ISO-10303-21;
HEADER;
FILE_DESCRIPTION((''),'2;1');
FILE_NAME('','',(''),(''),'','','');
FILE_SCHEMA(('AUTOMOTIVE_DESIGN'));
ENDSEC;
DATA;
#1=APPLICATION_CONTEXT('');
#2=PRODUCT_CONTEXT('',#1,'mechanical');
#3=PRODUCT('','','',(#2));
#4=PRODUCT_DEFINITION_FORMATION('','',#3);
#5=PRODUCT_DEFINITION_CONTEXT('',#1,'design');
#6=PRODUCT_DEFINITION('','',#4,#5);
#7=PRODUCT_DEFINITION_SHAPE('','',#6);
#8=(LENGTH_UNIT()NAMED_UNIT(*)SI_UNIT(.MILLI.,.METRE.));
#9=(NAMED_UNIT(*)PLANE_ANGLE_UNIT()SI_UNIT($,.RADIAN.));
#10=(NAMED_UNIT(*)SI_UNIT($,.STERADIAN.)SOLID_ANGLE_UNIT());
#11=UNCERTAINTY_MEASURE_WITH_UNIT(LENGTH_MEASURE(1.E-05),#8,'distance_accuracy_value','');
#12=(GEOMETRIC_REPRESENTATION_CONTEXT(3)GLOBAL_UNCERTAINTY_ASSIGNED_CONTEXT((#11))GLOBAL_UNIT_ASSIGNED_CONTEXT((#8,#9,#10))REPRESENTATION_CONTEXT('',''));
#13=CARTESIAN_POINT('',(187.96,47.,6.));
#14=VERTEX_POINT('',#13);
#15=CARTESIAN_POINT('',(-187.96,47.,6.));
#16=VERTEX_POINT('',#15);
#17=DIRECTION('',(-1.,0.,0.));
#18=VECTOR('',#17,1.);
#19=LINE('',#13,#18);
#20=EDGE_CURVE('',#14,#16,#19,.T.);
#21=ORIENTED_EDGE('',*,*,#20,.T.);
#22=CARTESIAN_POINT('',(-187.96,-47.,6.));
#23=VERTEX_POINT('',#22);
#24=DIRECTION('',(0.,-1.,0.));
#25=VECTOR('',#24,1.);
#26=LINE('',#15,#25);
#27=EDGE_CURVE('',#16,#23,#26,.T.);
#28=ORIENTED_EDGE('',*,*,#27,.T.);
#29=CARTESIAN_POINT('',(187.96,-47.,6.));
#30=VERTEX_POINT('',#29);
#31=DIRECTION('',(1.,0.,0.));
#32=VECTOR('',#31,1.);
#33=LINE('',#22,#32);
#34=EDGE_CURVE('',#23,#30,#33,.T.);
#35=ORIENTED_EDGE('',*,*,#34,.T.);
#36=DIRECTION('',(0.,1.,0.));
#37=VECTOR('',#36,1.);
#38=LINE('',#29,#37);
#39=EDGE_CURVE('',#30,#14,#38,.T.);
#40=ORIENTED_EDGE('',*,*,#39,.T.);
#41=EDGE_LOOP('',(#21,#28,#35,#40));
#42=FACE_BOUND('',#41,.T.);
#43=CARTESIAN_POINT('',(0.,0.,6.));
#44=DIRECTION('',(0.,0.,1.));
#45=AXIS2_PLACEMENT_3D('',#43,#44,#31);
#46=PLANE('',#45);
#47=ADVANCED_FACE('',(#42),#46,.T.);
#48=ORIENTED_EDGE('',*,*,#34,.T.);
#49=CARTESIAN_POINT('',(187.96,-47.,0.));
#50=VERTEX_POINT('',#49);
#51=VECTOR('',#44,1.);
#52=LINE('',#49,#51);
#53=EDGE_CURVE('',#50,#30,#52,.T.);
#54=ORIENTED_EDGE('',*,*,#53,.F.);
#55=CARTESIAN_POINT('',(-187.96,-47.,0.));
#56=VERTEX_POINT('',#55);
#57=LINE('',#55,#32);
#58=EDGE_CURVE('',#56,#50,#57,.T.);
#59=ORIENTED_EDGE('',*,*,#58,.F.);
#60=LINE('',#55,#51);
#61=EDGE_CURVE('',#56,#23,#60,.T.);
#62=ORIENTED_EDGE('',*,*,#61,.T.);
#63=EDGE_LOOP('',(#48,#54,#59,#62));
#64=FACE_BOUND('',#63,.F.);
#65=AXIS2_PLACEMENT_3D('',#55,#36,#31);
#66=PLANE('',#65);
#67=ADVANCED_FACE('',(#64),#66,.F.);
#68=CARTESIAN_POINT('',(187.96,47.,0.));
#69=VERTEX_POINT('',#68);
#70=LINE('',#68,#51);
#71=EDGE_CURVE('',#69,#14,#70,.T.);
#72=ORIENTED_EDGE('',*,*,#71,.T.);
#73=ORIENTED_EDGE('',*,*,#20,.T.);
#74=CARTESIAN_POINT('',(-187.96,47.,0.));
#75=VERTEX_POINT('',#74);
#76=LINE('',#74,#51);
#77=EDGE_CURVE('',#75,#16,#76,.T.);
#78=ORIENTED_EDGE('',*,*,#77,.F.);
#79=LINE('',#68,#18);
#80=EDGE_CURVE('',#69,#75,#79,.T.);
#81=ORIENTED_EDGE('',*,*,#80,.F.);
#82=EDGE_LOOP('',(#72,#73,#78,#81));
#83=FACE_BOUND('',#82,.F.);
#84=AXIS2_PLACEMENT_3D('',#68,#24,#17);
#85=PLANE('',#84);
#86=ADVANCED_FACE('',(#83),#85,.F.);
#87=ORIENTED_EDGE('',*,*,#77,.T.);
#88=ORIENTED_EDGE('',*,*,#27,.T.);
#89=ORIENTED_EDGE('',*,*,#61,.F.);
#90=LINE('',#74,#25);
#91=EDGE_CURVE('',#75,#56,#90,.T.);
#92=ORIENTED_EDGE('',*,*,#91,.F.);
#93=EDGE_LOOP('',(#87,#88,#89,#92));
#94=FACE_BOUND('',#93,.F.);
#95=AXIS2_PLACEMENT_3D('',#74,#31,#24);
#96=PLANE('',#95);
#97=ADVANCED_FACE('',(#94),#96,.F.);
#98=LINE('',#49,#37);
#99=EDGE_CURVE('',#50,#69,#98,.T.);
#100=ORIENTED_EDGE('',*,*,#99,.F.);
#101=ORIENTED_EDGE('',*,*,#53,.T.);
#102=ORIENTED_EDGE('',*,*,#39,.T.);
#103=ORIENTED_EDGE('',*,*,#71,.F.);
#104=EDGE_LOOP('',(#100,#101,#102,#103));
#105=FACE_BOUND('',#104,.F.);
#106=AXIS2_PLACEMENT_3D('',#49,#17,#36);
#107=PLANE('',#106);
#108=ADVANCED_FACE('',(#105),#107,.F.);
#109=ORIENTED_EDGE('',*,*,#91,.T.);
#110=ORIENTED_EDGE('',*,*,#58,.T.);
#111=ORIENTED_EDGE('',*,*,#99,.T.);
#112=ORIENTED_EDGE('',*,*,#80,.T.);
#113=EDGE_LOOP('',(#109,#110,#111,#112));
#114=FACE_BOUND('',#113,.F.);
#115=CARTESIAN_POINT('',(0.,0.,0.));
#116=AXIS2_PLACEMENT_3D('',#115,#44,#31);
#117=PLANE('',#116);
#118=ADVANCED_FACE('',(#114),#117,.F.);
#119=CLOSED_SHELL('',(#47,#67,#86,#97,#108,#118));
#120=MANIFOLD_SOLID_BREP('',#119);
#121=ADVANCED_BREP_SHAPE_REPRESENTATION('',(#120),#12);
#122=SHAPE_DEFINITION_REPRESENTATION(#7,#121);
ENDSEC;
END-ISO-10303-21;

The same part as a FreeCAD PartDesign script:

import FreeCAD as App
import Part
import Sketcher
from FreeCAD import Vector


def add_polygon(sketch, points):
    """Adds a closed chain of lines whose ends are joined by coincident constraints."""
    first, n = sketch.GeometryCount, len(points)
    for a, b in zip(points, points[1:] + points[:1]):
        sketch.addGeometry(Part.LineSegment(App.Vector(*a, 0), App.Vector(*b, 0)), False)
    for i in range(n):
        sketch.addConstraint(Sketcher.Constraint("Coincident", first + i, 2, first + (i + 1) % n, 1))

doc = App.newDocument("Part")
body = doc.addObject("PartDesign::Body", "Body")

# Sketch on XY plane
sketch1 = doc.addObject("Sketcher::SketchObject", "Sketch")
body.addObject(sketch1)
sketch1.AttachmentSupport = (doc.XY_Plane, [""])
sketch1.MapMode = "FlatFace"
add_polygon(sketch1, [(-187.96, 47), (-187.96, -47), (187.96, -47), (187.96, 47)])  # lines 0-3
sketch1.addConstraint([
    Sketcher.Constraint("Vertical", 0),
    Sketcher.Constraint("Horizontal", 1),
    Sketcher.Constraint("Vertical", 2),
    Sketcher.Constraint("Horizontal", 3),
    Sketcher.Constraint("Symmetric", 0, 2, 2, 2, -1, 1),
    Sketcher.Constraint("DistanceY", 0, 2, 0, 1, 94.0),
    Sketcher.Constraint("DistanceX", 1, 1, 1, 2, 375.92),
])
pad1 = doc.addObject("PartDesign::Pad", "Pad")
body.addObject(pad1)
pad1.Profile = sketch1
pad1.Length = 6

doc.recompute()
